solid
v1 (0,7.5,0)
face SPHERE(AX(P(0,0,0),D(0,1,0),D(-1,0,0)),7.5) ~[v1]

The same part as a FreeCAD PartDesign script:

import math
import FreeCAD as App
import Part
import Sketcher

V = App.Vector

doc = App.newDocument("Part")
params = doc.addObject("Spreadsheet::Sheet", "Params")
for row, (alias, value) in enumerate([
    ("sketch1_radius", "7.5 mm"),
    ("revolution_angle", "360 deg"),
], start=1):
    params.set(f"A{row}", alias)
    params.set(f"B{row}", "=" + value)
    params.setAlias(f"B{row}", alias)

body = doc.addObject("PartDesign::Body", "Body")

# Sketch on XY plane
sketch1 = doc.addObject("Sketcher::SketchObject", "Sketch")
body.addObject(sketch1)
sketch1.AttachmentSupport = (doc.XY_Plane, [""])
sketch1.MapMode = "FlatFace"
sketch1.addGeometry(Part.LineSegment(V(0, -7.5, 0), V(0, 7.5, 0)), False)
sketch1.addGeometry(Part.ArcOfCircle(Part.Circle(V(0, 0, 0), V(0, 0, 1), 7.5), math.radians(90), math.radians(270)), False)
sketch1.addConstraint(Sketcher.Constraint("Coincident", 0, 1, 1, 2))
sketch1.addConstraint(Sketcher.Constraint("Coincident", 1, 1, 0, 2))
sketch1.addConstraint(Sketcher.Constraint("Vertical", 0))
sketch1.addConstraint(Sketcher.Constraint("Coincident", 1, 3, -1, 1))
sketch1.addConstraint(Sketcher.Constraint("PointOnObject", 0, 1, -2))
sketch1.addConstraint(Sketcher.Constraint("Radius", 1, 7.5))
sketch1.setExpression("Constraints[5]", "Params.sketch1_radius")
revolution = doc.addObject("PartDesign::Revolution", "Revolution")
body.addObject(revolution)
revolution.Profile = sketch1
revolution.ReferenceAxis = (sketch1, ["V_Axis"])
revolution.setExpression("Angle", "Params.revolution_angle")

doc.recompute()
